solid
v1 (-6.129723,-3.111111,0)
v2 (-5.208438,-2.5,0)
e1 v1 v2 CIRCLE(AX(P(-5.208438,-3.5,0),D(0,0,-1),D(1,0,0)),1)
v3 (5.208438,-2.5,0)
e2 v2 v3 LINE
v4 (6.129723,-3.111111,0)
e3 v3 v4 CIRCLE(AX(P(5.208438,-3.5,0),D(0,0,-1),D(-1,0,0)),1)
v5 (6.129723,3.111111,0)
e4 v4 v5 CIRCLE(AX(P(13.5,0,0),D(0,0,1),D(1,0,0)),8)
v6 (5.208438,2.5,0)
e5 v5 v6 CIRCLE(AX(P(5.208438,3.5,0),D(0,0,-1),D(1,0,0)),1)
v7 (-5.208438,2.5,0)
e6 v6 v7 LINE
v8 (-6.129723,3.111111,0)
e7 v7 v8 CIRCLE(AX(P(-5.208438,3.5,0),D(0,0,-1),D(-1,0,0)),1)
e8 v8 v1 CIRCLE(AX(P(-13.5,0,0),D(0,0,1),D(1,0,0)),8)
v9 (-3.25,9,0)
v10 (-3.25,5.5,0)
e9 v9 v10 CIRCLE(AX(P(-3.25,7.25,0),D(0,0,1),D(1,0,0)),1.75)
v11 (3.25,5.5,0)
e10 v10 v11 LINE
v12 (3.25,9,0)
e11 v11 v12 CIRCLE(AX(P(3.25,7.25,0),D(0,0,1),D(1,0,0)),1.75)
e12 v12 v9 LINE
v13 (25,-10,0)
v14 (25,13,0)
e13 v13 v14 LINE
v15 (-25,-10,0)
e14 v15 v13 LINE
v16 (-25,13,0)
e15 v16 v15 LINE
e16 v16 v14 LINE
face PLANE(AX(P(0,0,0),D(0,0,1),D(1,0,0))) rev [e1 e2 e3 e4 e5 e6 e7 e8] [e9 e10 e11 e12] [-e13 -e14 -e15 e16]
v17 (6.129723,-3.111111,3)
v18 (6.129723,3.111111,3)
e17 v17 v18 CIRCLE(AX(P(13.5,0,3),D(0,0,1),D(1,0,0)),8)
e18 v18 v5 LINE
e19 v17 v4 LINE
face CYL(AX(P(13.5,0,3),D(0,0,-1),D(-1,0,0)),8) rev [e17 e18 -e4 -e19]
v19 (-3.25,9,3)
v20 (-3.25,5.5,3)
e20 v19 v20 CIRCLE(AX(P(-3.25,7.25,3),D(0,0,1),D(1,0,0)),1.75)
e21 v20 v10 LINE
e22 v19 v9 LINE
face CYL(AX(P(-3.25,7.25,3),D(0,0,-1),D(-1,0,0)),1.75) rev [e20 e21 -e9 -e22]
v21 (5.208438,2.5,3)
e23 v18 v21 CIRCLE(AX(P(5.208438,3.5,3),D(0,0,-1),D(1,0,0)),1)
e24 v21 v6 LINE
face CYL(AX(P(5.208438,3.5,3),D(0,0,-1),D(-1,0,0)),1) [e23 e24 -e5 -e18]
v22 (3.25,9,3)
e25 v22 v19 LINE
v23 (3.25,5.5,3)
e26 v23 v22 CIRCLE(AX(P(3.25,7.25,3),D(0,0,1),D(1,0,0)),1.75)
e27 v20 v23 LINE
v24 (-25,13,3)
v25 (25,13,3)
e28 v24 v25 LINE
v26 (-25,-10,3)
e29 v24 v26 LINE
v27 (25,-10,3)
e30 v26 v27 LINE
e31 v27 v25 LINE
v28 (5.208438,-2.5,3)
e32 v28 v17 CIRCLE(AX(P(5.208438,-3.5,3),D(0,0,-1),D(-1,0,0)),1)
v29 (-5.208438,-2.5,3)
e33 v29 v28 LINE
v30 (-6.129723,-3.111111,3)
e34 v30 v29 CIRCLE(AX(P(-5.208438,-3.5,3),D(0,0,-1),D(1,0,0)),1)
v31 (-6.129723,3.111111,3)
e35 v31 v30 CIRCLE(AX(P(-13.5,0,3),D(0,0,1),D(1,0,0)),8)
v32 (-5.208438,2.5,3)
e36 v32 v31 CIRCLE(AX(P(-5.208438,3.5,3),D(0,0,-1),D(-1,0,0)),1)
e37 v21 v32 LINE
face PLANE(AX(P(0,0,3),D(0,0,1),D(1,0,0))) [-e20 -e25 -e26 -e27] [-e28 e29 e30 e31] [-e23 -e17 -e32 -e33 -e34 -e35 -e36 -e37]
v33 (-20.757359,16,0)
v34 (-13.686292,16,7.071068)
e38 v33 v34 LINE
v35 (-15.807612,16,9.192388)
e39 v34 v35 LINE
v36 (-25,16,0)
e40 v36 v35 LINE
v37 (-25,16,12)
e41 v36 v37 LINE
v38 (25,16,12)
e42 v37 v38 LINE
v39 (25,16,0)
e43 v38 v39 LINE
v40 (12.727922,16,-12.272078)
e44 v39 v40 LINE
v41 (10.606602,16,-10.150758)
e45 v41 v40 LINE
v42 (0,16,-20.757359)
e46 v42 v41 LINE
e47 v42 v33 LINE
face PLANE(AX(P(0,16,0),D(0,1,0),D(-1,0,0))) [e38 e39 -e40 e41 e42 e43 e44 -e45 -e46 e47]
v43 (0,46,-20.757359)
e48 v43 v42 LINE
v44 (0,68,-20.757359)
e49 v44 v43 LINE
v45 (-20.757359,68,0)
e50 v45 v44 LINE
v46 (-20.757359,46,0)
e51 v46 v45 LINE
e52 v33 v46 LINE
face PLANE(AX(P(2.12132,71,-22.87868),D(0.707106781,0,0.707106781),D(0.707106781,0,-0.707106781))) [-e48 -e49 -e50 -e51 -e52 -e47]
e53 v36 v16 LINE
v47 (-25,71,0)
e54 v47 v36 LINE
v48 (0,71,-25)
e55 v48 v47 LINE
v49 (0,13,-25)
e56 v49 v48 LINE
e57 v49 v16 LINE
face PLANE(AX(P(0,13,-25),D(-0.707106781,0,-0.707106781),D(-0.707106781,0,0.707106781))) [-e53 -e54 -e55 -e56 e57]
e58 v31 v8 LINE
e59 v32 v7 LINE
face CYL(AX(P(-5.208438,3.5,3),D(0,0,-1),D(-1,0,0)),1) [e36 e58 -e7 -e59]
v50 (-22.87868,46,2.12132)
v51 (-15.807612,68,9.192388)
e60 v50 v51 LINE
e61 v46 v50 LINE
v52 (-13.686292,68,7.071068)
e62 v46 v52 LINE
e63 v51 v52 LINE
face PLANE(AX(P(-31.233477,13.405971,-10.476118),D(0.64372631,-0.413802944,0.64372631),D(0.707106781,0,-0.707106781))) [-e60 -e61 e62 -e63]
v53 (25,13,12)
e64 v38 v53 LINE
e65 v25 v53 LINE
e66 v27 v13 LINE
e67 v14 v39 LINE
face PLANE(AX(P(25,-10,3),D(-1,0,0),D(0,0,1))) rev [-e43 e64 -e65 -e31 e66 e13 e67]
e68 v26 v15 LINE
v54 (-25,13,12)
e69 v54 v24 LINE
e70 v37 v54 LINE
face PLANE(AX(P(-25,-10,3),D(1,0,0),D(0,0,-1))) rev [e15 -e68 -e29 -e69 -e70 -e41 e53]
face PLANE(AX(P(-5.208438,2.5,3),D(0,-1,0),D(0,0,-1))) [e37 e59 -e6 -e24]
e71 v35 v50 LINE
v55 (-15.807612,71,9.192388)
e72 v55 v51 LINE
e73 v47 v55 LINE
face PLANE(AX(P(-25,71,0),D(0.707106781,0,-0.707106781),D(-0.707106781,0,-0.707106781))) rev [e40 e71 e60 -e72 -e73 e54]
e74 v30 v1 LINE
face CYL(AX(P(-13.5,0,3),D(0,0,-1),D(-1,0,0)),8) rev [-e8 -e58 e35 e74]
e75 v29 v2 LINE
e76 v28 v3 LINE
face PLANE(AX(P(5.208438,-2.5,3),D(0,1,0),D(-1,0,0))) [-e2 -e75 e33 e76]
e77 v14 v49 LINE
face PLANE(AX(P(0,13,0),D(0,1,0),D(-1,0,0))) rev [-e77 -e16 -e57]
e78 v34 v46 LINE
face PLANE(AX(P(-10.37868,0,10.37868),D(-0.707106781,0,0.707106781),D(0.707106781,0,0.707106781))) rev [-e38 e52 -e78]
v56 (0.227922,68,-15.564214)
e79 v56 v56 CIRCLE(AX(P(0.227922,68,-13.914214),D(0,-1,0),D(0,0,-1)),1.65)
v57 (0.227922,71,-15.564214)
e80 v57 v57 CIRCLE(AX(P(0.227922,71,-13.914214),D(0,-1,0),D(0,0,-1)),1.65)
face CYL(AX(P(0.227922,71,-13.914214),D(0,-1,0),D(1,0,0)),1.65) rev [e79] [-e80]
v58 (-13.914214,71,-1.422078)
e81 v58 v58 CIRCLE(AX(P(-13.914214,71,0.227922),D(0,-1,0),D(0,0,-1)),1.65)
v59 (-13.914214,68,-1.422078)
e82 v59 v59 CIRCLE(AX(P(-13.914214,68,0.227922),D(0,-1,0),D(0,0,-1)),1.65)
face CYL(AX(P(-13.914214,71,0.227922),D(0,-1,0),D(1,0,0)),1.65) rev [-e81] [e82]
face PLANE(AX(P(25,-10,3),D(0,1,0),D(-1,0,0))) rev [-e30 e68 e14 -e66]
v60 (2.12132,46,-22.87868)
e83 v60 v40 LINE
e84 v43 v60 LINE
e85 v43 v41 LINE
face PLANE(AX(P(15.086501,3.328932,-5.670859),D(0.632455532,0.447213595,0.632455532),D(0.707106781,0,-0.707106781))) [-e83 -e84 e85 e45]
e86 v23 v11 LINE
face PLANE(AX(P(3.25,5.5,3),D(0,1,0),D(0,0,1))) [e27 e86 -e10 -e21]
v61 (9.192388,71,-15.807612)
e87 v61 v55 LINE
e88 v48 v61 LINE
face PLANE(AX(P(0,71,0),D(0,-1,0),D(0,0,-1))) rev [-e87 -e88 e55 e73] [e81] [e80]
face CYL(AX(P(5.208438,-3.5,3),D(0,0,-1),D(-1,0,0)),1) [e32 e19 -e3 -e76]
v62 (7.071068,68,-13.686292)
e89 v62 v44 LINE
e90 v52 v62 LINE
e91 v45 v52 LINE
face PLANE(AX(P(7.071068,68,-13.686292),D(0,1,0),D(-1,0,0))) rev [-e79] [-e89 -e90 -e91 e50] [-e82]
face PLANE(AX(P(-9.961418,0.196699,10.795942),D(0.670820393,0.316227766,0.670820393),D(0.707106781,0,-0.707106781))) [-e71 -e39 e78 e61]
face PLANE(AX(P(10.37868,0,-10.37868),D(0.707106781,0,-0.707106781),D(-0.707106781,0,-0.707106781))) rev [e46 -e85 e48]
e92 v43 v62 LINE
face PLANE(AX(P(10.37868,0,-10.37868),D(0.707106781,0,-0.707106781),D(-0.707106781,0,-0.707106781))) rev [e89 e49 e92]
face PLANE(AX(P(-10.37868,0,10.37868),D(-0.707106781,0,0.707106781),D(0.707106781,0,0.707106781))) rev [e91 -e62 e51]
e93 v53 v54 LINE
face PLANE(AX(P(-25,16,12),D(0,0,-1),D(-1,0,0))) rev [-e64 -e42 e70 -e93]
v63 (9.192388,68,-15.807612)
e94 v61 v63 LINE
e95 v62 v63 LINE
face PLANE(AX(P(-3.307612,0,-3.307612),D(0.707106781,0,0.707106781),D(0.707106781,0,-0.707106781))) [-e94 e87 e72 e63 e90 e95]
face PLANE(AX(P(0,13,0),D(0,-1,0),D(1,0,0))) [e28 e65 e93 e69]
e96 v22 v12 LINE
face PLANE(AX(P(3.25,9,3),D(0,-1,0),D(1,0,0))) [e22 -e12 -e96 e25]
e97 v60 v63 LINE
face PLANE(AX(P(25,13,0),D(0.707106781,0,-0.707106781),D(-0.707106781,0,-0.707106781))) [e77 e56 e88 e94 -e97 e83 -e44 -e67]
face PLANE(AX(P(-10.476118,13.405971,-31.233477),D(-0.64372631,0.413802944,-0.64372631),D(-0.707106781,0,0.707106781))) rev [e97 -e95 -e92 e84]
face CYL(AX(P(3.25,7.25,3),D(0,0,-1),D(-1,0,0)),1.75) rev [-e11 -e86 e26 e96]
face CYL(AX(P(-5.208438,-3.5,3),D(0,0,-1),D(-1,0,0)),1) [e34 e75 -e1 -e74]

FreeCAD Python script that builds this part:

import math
import FreeCAD as App
import Part
import Sketcher
from FreeCAD import Vector
Q = App.Units.Quantity


def add_polygon(sketch, points):
    """Adds a closed chain of lines whose ends are joined by coincident constraints."""
    first, n = sketch.GeometryCount, len(points)
    for a, b in zip(points, points[1:] + points[:1]):
        sketch.addGeometry(Part.LineSegment(App.Vector(*a, 0), App.Vector(*b, 0)), False)
    for i in range(n):
        sketch.addConstraint(Sketcher.Constraint("Coincident", first + i, 2, first + (i + 1) % n, 1))

doc = App.newDocument("Part")
body = doc.addObject("PartDesign::Body", "Body")

# Sketch on XY plane
sketch1 = body.newObject("Sketcher::SketchObject", "Sketch")
sketch1.AttachmentSupport = (doc.getObject("XY_Plane"), [""])
sketch1.MapMode = "FlatFace"
add_polygon(sketch1, [(-25, 10), (-25, -10), (25, -10), (25, 10)])  # lines 0-3
sketch1.addGeometry(Part.ArcOfCircle(Part.Circle(Vector(-5.208438, 3.5, 0), Vector(0, 0, 1), 1), math.radians(-157.11462), math.radians(-90)), False)  # 4
sketch1.addGeometry(Part.LineSegment(Vector(-5.208438, 2.5, 0), Vector(5.208438, 2.5, 0)), False)  # 5
sketch1.addGeometry(Part.ArcOfCircle(Part.Circle(Vector(5.208438, 3.5, 0), Vector(0, 0, 1), 1), math.radians(-90), math.radians(-22.88538)), False)  # 6
sketch1.addGeometry(Part.ArcOfCircle(Part.Circle(Vector(13.5, 0, 0), Vector(0, 0, 1), 8), math.radians(-157.11462), math.radians(157.11462)), False)  # 7
sketch1.addGeometry(Part.ArcOfCircle(Part.Circle(Vector(5.208438, -3.5, 0), Vector(0, 0, 1), 1), math.radians(22.88538), math.radians(90)), False)  # 8
sketch1.addGeometry(Part.LineSegment(Vector(5.208438, -2.5, 0), Vector(-5.208438, -2.5, 0)), False)  # 9
sketch1.addGeometry(Part.ArcOfCircle(Part.Circle(Vector(-5.208438, -3.5, 0), Vector(0, 0, 1), 1), math.radians(90), math.radians(157.11462)), False)  # 10
sketch1.addGeometry(Part.ArcOfCircle(Part.Circle(Vector(-13.5, 0, 0), Vector(0, 0, 1), 8), math.radians(22.88538), math.radians(337.11462)), False)  # 11
sketch1.addGeometry(Part.ArcOfCircle(Part.Circle(Vector(3.25, 7.25, 0), Vector(0, 0, 1), 1.75), math.radians(-90), math.radians(90)), False)  # 12
sketch1.addGeometry(Part.LineSegment(Vector(3.25, 5.5, 0), Vector(-3.25, 5.5, 0)), False)  # 13
sketch1.addGeometry(Part.ArcOfCircle(Part.Circle(Vector(-3.25, 7.25, 0), Vector(0, 0, 1), 1.75), math.radians(90), math.radians(270)), False)  # 14
sketch1.addGeometry(Part.LineSegment(Vector(-3.25, 9, 0), Vector(3.25, 9, 0)), False)  # 15
sketch1.addConstraint(Sketcher.Constraint("Tangent", 4, 2, 5, 1))
sketch1.addConstraint(Sketcher.Constraint("Tangent", 5, 2, 6, 1))
sketch1.addConstraint(Sketcher.Constraint("Tangent", 6, 2, 7, 2))
sketch1.addConstraint(Sketcher.Constraint("Tangent", 7, 1, 8, 1))
sketch1.addConstraint(Sketcher.Constraint("Tangent", 8, 2, 9, 1))
sketch1.addConstraint(Sketcher.Constraint("Tangent", 9, 2, 10, 1))
sketch1.addConstraint(Sketcher.Constraint("Tangent", 10, 2, 11, 2))
sketch1.addConstraint(Sketcher.Constraint("Tangent", 11, 1, 4, 1))
sketch1.addConstraint(Sketcher.Constraint("Tangent", 12, 1, 13, 1))
sketch1.addConstraint(Sketcher.Constraint("Tangent", 13, 2, 14, 2))
sketch1.addConstraint(Sketcher.Constraint("Tangent", 14, 1, 15, 1))
sketch1.addConstraint(Sketcher.Constraint("Tangent", 15, 2, 12, 2))
sketch1.addConstraint(Sketcher.Constraint("Vertical", 0))
sketch1.addConstraint(Sketcher.Constraint("Horizontal", 1))
sketch1.addConstraint(Sketcher.Constraint("Vertical", 2))
sketch1.addConstraint(Sketcher.Constraint("Horizontal", 3))
sketch1.addConstraint(Sketcher.Constraint("Horizontal", 5))
sketch1.addConstraint(Sketcher.Constraint("Horizontal", 9))
sketch1.addConstraint(Sketcher.Constraint("Horizontal", 13))
sketch1.addConstraint(Sketcher.Constraint("Horizontal", 15))
sketch1.addConstraint(Sketcher.Constraint("Equal", 4, 6))
sketch1.addConstraint(Sketcher.Constraint("Equal", 6, 8))
sketch1.addConstraint(Sketcher.Constraint("Equal", 8, 10))
sketch1.addConstraint(Sketcher.Constraint("Equal", 7, 11))
sketch1.addConstraint(Sketcher.Constraint("Symmetric", 4, 3, 8, 3, -1, 1))
sketch1.addConstraint(Sketcher.Constraint("Symmetric", 0, 2, 2, 2, -1, 1))
sketch1.addConstraint(Sketcher.Constraint("Symmetric", 7, 3, 11, 3, -2))
sketch1.addConstraint(Sketcher.Constraint("Radius", 4, Q("1 mm")))
sketch1.addConstraint(Sketcher.Constraint("Radius", 7, Q("8 mm")))
sketch1.addConstraint(Sketcher.Constraint("DistanceX", 1, 1, 1, 2, Q("50 mm")))
sketch1.addConstraint(Sketcher.Constraint("DistanceY", 0, 2, 0, 1, Q("20 mm")))
sketch1.addConstraint(Sketcher.Constraint("Radius", 12, Q("1.75 mm")))
sketch1.addConstraint(Sketcher.Constraint("DistanceX", 13, 2, 13, 1, Q("6.5 mm")))
sketch1.addConstraint(Sketcher.Constraint("DistanceY", -1, 1, 14, 1, Q("9 mm")))
sketch1.addConstraint(Sketcher.Constraint("DistanceY", 8, 3, 6, 3, Q("7 mm")))
sketch1.addConstraint(Sketcher.Constraint("DistanceX", 11, 3, 7, 3, Q("27 mm")))
sketch1.addConstraint(Sketcher.Constraint("DistanceX", -1, 1, 12, 3, Q("3.25 mm")))
pad1 = body.newObject("PartDesign::Pad", "Pad")
pad1.Profile = sketch1
pad1.Length = 3

# Sketch on XZ plane
sketch2 = body.newObject("Sketcher::SketchObject", "Sketch001")
sketch2.AttachmentSupport = (doc.getObject("XZ_Plane"), [""])
sketch2.MapMode = "FlatFace"
sketch2.AttachmentOffset = App.Placement(Vector(0, 0, -10), App.Rotation())
add_polygon(sketch2, [(-25, 0), (-25, 12), (25, 12), (25, 0)])  # lines 0-3
sketch2.addConstraint(Sketcher.Constraint("Vertical", 0))
sketch2.addConstraint(Sketcher.Constraint("Horizontal", 1))
sketch2.addConstraint(Sketcher.Constraint("Vertical", 2))
sketch2.addConstraint(Sketcher.Constraint("Horizontal", 3))
sketch2.addConstraint(Sketcher.Constraint("Symmetric", 2, 2, 3, 2, -1, 1))
sketch2.addConstraint(Sketcher.Constraint("DistanceX", 1, 1, 1, 2, Q("50 mm")))
sketch2.addConstraint(Sketcher.Constraint("DistanceY", 0, 1, 0, 2, Q("12 mm")))
pad2 = body.newObject("PartDesign::Pad", "Pad001")
pad2.Profile = sketch2
pad2.Length = 6
pad2.Reversed = True

# Sketch on XZ plane
sketch3 = body.newObject("Sketcher::SketchObject", "Sketch002")
sketch3.AttachmentSupport = (doc.getObject("XZ_Plane"), [""])
sketch3.MapMode = "FlatFace"
sketch3.AttachmentOffset = App.Placement(Vector(0, 0, -10), App.Rotation())
add_polygon(sketch3, [(-25, 12), (-25, 3), (25, 3), (25, 12)])  # lines 0-3
sketch3.addConstraint(Sketcher.Constraint("Vertical", 0))
sketch3.addConstraint(Sketcher.Constraint("Horizontal", 1))
sketch3.addConstraint(Sketcher.Constraint("Vertical", 2))
sketch3.addConstraint(Sketcher.Constraint("Horizontal", 3))
sketch3.addConstraint(Sketcher.Constraint("DistanceX", 1, 1, 1, 2, Q("50 mm")))
sketch3.addConstraint(Sketcher.Constraint("DistanceY", 0, 2, 0, 1, Q("9 mm")))
sketch3.addConstraint(Sketcher.Constraint("DistanceX", 0, 2, -1, 1, Q("25 mm")))
sketch3.addConstraint(Sketcher.Constraint("DistanceY", -1, 1, 0, 2, Q("3 mm")))
pocket1 = body.newObject("PartDesign::Pocket", "Pocket")
pocket1.Profile = sketch3
pocket1.Length = 3

# Sketch on XZ plane
sketch4 = body.newObject("Sketcher::SketchObject", "Sketch003")
sketch4.AttachmentSupport = (doc.getObject("XZ_Plane"), [""])
sketch4.MapMode = "FlatFace"
sketch4.AttachmentOffset = App.Placement(Vector(0, 0, -16), App.Rotation())
add_polygon(sketch4, [(25, 0), (0, -25), (-25, 0)])  # lines 0-2
sketch4.addConstraint(Sketcher.Constraint("Horizontal", 2))
sketch4.addConstraint(Sketcher.Constraint("Symmetric", 1, 2, 2, 2, -1, 1))
sketch4.addConstraint(Sketcher.Constraint("PointOnObject", 0, 2, -2))
sketch4.addConstraint(Sketcher.Constraint("Perpendicular", 0, 1))
sketch4.addConstraint(Sketcher.Constraint("DistanceX", 2, 1, 2, 2, Q("50 mm")))
pad3 = body.newObject("PartDesign::Pad", "Pad002")
pad3.Profile = sketch4
pad3.Length = 3

# Sketch on XZ plane
sketch5 = body.newObject("Sketcher::SketchObject", "Sketch004")
sketch5.AttachmentSupport = (doc.getObject("XZ_Plane"), [""])
sketch5.MapMode = "FlatFace"
sketch5.AttachmentOffset = App.Placement(Vector(0, 0, -16), App.Rotation())
add_polygon(sketch5, [(2.12132, -22.87868), (0, -25), (-25, 0), (-22.87868, 2.12132)])  # lines 0-3
sketch5.addConstraint(Sketcher.Constraint("PointOnObject", 0, 2, -2))
sketch5.addConstraint(Sketcher.Constraint("PointOnObject", 1, 2, -1))
sketch5.addConstraint(Sketcher.Constraint("Perpendicular", 0, 1))
sketch5.addConstraint(Sketcher.Constraint("Perpendicular", 1, 2))
sketch5.addConstraint(Sketcher.Constraint("Perpendicular", 2, 3))
sketch5.addConstraint(Sketcher.Constraint("Angle", 0, Q("-135 deg")))
sketch5.addConstraint(Sketcher.Constraint("Distance", 0, Q("3 mm")))
sketch5.addConstraint(Sketcher.Constraint("DistanceY", 0, 2, -1, 1, Q("25 mm")))
pad4 = body.newObject("PartDesign::Pad", "Pad003")
pad4.Profile = sketch5
pad4.Length = 55
pad4.Reversed = True

# Sketch on an angled plane
sketch6 = body.newObject("Sketcher::SketchObject", "Sketch005")
sketch6.Placement = App.Placement(Vector(-10.37868, 0, -10.37868), App.Rotation(Vector(0.707106781, 0, -0.707106781), Vector(0, 0.999999999, 0), Vector(0.707106781, 0, 0.707106781), "ZXY"))
add_polygon(sketch6, [(-17.67767, 71), (-17.67767, 68), (14.67767, 68), (14.67767, 71)])  # lines 0-3
sketch6.addConstraint(Sketcher.Constraint("Vertical", 0))
sketch6.addConstraint(Sketcher.Constraint("Horizontal", 1))
sketch6.addConstraint(Sketcher.Constraint("Vertical", 2))
sketch6.addConstraint(Sketcher.Constraint("Horizontal", 3))
sketch6.addConstraint(Sketcher.Constraint("DistanceY", 0, 2, 0, 1, Q("3 mm")))
sketch6.addConstraint(Sketcher.Constraint("DistanceY", -1, 1, 0, 2, Q("68 mm")))
sketch6.addConstraint(Sketcher.Constraint("DistanceX", 1, 1, 1, 2, Q("32.355339 mm")))
sketch6.addConstraint(Sketcher.Constraint("DistanceX", 0, 2, -1, 1, Q("17.67767 mm")))
pad5 = body.newObject("PartDesign::Pad", "Pad004")
pad5.Profile = sketch6
pad5.Length = 10

# Sketch on an angled plane
sketch7 = body.newObject("Sketcher::SketchObject", "Sketch006")
sketch7.Placement = App.Placement(Vector(12.5, 0, -12.5), App.Rotation(Vector(-0.707106781, 0, -0.707106781), Vector(0, 0.999999999, 0), Vector(0.707106781, 0, -0.707106781), "ZXY"))
add_polygon(sketch7, [(14.67767, 16), (14.67767, 46), (-0.32233, 16)])  # lines 0-2
add_polygon(sketch7, [(14.67767, 46), (14.67767, 71), (4.67767, 71), (4.67767, 68)])  # lines 3-6
sketch7.addConstraint(Sketcher.Constraint("Vertical", 0))
sketch7.addConstraint(Sketcher.Constraint("Horizontal", 2))
sketch7.addConstraint(Sketcher.Constraint("Vertical", 3))
sketch7.addConstraint(Sketcher.Constraint("Horizontal", 4))
sketch7.addConstraint(Sketcher.Constraint("Vertical", 5))
sketch7.addConstraint(Sketcher.Constraint("Coincident", 6, 2, 0, 2))
sketch7.addConstraint(Sketcher.Constraint("DistanceX", 2, 1, 2, 2, Q("15 mm")))
sketch7.addConstraint(Sketcher.Constraint("DistanceX", 4, 2, 4, 1, Q("10 mm")))
sketch7.addConstraint(Sketcher.Constraint("DistanceY", 0, 1, 0, 2, Q("30 mm")))
sketch7.addConstraint(Sketcher.Constraint("DistanceY", 3, 1, 3, 2, Q("25 mm")))
sketch7.addConstraint(Sketcher.Constraint("DistanceY", 5, 2, 5, 1, Q("3 mm")))
sketch7.addConstraint(Sketcher.Constraint("DistanceY", -1, 1, 0, 2, Q("46 mm")))
sketch7.addConstraint(Sketcher.Constraint("DistanceX", -1, 1, 0, 2, Q("14.67767 mm")))
pad6 = body.newObject("PartDesign::Pad", "Pad005")
pad6.Profile = sketch7
pad6.Length = 3
pad6.Reversed = True

# Sketch on an angled plane
sketch8 = body.newObject("Sketcher::SketchObject", "Sketch007")
sketch8.Placement = App.Placement(Vector(-12.5, 0, 12.5), App.Rotation(Vector(0.707106781, 0, 0.707106781), Vector(0, 0.999999999, 0), Vector(-0.707106781, 0, 0.707106781), "ZXY"))
add_polygon(sketch8, [(-14.67767, 46), (-14.67767, 16), (-4.67767, 16)])  # lines 0-2
add_polygon(sketch8, [(-14.67767, 68), (-14.67767, 46), (-4.67767, 68)])  # lines 3-5
sketch8.addConstraint(Sketcher.Constraint("Vertical", 0))
sketch8.addConstraint(Sketcher.Constraint("Horizontal", 1))
sketch8.addConstraint(Sketcher.Constraint("Vertical", 3))
sketch8.addConstraint(Sketcher.Constraint("Horizontal", 5))
sketch8.addConstraint(Sketcher.Constraint("Coincident", 3, 2, 2, 2))
sketch8.addConstraint(Sketcher.Constraint("Vertical", 1, 2, 4, 2))
sketch8.addConstraint(Sketcher.Constraint("DistanceX", 1, 1, 1, 2, Q("10 mm")))
sketch8.addConstraint(Sketcher.Constraint("DistanceY", 0, 2, 0, 1, Q("30 mm")))
sketch8.addConstraint(Sketcher.Constraint("DistanceY", 3, 2, 3, 1, Q("22 mm")))
sketch8.addConstraint(Sketcher.Constraint("DistanceY", -1, 1, 0, 2, Q("16 mm")))
sketch8.addConstraint(Sketcher.Constraint("DistanceX", 0, 2, -1, 1, Q("14.67767 mm")))
pad7 = body.newObject("PartDesign::Pad", "Pad006")
pad7.Profile = sketch8
pad7.Length = 3
pad7.Reversed = True

# Sketch on XZ plane
sketch9 = body.newObject("Sketcher::SketchObject", "Sketch008")
sketch9.AttachmentSupport = (doc.getObject("XZ_Plane"), [""])
sketch9.MapMode = "FlatFace"
sketch9.AttachmentOffset = App.Placement(Vector(0, 0, -68), App.Rotation())
sketch9.addGeometry(Part.Circle(Vector(0.227922, -13.914214, 0), Vector(0, 0, 1), 1.65), False)
sketch9.addGeometry(Part.Circle(Vector(-13.914214, 0.227922, 0), Vector(0, 0, 1), 1.65), False)
sketch9.addConstraint(Sketcher.Constraint("Equal", 0, 1))
sketch9.addConstraint(Sketcher.Constraint("Diameter", 0, Q("3.3 mm")))
sketch9.addConstraint(Sketcher.Constraint("DistanceX", -1, 1, 0, 3, Q("0.227922 mm")))
sketch9.addConstraint(Sketcher.Constraint("DistanceY", 0, 3, -1, 1, Q("13.914214 mm")))
sketch9.addConstraint(Sketcher.Constraint("DistanceX", 1, 3, -1, 1, Q("13.914214 mm")))
sketch9.addConstraint(Sketcher.Constraint("DistanceY", -1, 1, 1, 3, Q("0.227922 mm")))
pocket2 = body.newObject("PartDesign::Pocket", "Pocket001")
pocket2.Profile = sketch9
pocket2.Length = 3

doc.recompute()
